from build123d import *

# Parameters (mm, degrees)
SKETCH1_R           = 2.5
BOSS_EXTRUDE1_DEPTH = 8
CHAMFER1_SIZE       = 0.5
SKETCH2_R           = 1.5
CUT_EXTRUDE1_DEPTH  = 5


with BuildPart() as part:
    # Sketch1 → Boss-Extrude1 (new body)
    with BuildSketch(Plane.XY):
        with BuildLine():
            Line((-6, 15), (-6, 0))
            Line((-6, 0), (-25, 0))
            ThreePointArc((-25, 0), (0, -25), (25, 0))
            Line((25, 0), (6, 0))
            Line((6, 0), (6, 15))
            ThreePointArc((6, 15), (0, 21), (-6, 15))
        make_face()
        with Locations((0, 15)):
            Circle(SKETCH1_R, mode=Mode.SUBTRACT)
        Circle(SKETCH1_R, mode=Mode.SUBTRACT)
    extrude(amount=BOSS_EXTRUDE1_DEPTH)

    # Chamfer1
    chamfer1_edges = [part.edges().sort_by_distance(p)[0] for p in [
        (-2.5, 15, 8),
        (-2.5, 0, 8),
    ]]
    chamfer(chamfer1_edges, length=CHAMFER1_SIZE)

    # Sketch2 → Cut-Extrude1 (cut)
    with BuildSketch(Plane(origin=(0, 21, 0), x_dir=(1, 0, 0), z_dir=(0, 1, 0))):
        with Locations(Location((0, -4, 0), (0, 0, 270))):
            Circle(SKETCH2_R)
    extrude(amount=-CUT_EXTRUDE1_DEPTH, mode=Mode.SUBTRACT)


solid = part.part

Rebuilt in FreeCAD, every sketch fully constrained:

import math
import FreeCAD as App
import Part
import Sketcher
from FreeCAD import Vector
Q = App.Units.Quantity


def edges_at(feature, points):
    """Names of the edges that pass closest to the given points."""
    edges = feature.Shape.Edges
    near = lambda p: min(range(len(edges)), key=lambda i: edges[i].distToShape(Part.Vertex(*p))[0])
    return sorted({f"Edge{near(p) + 1}" for p in points})

doc = App.newDocument("Part")
body = doc.addObject("PartDesign::Body", "Body")

# Sketch on XY plane
sketch1 = doc.addObject("Sketcher::SketchObject", "Sketch")
body.addObject(sketch1)
sketch1.AttachmentSupport = (doc.XY_Plane, [""])
sketch1.MapMode = "FlatFace"
sketch1.addGeometry(Part.LineSegment(Vector(-6, 15, 0), Vector(-6, 0, 0)), False)
sketch1.addGeometry(Part.LineSegment(Vector(-6, 0, 0), Vector(-25, 0, 0)), False)
sketch1.addGeometry(Part.ArcOfCircle(Part.Circle(Vector(0, 0, 0), Vector(0, 0, 1), 25), math.radians(180), math.radians(360)), False)
sketch1.addGeometry(Part.LineSegment(Vector(25, 0, 0), Vector(6, 0, 0)), False)
sketch1.addGeometry(Part.LineSegment(Vector(6, 0, 0), Vector(6, 15, 0)), False)
sketch1.addGeometry(Part.ArcOfCircle(Part.Circle(Vector(0, 15, 0), Vector(0, 0, 1), 6), math.radians(0), math.radians(180)), False)
sketch1.addGeometry(Part.Circle(Vector(0, 0, 0), Vector(0, 0, 1), 2.5), False)
sketch1.addGeometry(Part.Circle(Vector(0, 15, 0), Vector(0, 0, 1), 2.5), False)
sketch1.addConstraint(Sketcher.Constraint("Coincident", 0, 2, 1, 1))
sketch1.addConstraint(Sketcher.Constraint("Coincident", 1, 2, 2, 1))
sketch1.addConstraint(Sketcher.Constraint("Coincident", 2, 2, 3, 1))
sketch1.addConstraint(Sketcher.Constraint("Coincident", 3, 2, 4, 1))
sketch1.addConstraint(Sketcher.Constraint("Tangent", 4, 2, 5, 1))
sketch1.addConstraint(Sketcher.Constraint("Tangent", 5, 2, 0, 1))
sketch1.addConstraint(Sketcher.Constraint("Vertical", 0))
sketch1.addConstraint(Sketcher.Constraint("Horizontal", 1))
sketch1.addConstraint(Sketcher.Constraint("Horizontal", 3))
sketch1.addConstraint(Sketcher.Constraint("Vertical", 4))
sketch1.addConstraint(Sketcher.Constraint("Coincident", 2, 3, -1, 1))
sketch1.addConstraint(Sketcher.Constraint("Coincident", 6, 3, -1, 1))
sketch1.addConstraint(Sketcher.Constraint("Coincident", 7, 3, 5, 3))
sketch1.addConstraint(Sketcher.Constraint("Equal", 6, 7))
sketch1.addConstraint(Sketcher.Constraint("Symmetric", 0, 2, 3, 2, -1, 1))
sketch1.addConstraint(Sketcher.Constraint("PointOnObject", 0, 2, -1))
sketch1.addConstraint(Sketcher.Constraint("Diameter", 6, Q("5 mm")))
sketch1.addConstraint(Sketcher.Constraint("Radius", 2, Q("25 mm")))
sketch1.addConstraint(Sketcher.Constraint("Radius", 5, Q("6 mm")))
sketch1.addConstraint(Sketcher.Constraint("DistanceY", 0, 2, 0, 1, Q("15 mm")))
pad1 = doc.addObject("PartDesign::Pad", "Pad")
body.addObject(pad1)
pad1.Profile = sketch1
pad1.Length = 8
doc.recompute()

chamfer = doc.addObject("PartDesign::Chamfer", "Chamfer")
body.addObject(chamfer)
chamfer.Base = (pad1, edges_at(pad1, [(-2.5, 15, 8), (-2.5, 0, 8)]))
chamfer.Size = 0.5

# Sketch on XZ plane
sketch2 = doc.addObject("Sketcher::SketchObject", "Sketch001")
body.addObject(sketch2)
sketch2.AttachmentSupport = (doc.XZ_Plane, [""])
sketch2.MapMode = "FlatFace"
sketch2.AttachmentOffset = App.Placement(Vector(0, 0, -21), App.Rotation())
sketch2.addGeometry(Part.Circle(Vector(0, 4, 0), Vector(0, 0, 1), 1.5), False)
sketch2.addConstraint(Sketcher.Constraint("PointOnObject", 0, 3, -2))
sketch2.addConstraint(Sketcher.Constraint("Diameter", 0, Q("3 mm")))
sketch2.addConstraint(Sketcher.Constraint("DistanceY", -1, 1, 0, 3, Q("4 mm")))
pocket1 = doc.addObject("PartDesign::Pocket", "Pocket")
body.addObject(pocket1)
pocket1.Profile = sketch2
pocket1.Length = 5
pocket1.Reversed = True

doc.recompute()
